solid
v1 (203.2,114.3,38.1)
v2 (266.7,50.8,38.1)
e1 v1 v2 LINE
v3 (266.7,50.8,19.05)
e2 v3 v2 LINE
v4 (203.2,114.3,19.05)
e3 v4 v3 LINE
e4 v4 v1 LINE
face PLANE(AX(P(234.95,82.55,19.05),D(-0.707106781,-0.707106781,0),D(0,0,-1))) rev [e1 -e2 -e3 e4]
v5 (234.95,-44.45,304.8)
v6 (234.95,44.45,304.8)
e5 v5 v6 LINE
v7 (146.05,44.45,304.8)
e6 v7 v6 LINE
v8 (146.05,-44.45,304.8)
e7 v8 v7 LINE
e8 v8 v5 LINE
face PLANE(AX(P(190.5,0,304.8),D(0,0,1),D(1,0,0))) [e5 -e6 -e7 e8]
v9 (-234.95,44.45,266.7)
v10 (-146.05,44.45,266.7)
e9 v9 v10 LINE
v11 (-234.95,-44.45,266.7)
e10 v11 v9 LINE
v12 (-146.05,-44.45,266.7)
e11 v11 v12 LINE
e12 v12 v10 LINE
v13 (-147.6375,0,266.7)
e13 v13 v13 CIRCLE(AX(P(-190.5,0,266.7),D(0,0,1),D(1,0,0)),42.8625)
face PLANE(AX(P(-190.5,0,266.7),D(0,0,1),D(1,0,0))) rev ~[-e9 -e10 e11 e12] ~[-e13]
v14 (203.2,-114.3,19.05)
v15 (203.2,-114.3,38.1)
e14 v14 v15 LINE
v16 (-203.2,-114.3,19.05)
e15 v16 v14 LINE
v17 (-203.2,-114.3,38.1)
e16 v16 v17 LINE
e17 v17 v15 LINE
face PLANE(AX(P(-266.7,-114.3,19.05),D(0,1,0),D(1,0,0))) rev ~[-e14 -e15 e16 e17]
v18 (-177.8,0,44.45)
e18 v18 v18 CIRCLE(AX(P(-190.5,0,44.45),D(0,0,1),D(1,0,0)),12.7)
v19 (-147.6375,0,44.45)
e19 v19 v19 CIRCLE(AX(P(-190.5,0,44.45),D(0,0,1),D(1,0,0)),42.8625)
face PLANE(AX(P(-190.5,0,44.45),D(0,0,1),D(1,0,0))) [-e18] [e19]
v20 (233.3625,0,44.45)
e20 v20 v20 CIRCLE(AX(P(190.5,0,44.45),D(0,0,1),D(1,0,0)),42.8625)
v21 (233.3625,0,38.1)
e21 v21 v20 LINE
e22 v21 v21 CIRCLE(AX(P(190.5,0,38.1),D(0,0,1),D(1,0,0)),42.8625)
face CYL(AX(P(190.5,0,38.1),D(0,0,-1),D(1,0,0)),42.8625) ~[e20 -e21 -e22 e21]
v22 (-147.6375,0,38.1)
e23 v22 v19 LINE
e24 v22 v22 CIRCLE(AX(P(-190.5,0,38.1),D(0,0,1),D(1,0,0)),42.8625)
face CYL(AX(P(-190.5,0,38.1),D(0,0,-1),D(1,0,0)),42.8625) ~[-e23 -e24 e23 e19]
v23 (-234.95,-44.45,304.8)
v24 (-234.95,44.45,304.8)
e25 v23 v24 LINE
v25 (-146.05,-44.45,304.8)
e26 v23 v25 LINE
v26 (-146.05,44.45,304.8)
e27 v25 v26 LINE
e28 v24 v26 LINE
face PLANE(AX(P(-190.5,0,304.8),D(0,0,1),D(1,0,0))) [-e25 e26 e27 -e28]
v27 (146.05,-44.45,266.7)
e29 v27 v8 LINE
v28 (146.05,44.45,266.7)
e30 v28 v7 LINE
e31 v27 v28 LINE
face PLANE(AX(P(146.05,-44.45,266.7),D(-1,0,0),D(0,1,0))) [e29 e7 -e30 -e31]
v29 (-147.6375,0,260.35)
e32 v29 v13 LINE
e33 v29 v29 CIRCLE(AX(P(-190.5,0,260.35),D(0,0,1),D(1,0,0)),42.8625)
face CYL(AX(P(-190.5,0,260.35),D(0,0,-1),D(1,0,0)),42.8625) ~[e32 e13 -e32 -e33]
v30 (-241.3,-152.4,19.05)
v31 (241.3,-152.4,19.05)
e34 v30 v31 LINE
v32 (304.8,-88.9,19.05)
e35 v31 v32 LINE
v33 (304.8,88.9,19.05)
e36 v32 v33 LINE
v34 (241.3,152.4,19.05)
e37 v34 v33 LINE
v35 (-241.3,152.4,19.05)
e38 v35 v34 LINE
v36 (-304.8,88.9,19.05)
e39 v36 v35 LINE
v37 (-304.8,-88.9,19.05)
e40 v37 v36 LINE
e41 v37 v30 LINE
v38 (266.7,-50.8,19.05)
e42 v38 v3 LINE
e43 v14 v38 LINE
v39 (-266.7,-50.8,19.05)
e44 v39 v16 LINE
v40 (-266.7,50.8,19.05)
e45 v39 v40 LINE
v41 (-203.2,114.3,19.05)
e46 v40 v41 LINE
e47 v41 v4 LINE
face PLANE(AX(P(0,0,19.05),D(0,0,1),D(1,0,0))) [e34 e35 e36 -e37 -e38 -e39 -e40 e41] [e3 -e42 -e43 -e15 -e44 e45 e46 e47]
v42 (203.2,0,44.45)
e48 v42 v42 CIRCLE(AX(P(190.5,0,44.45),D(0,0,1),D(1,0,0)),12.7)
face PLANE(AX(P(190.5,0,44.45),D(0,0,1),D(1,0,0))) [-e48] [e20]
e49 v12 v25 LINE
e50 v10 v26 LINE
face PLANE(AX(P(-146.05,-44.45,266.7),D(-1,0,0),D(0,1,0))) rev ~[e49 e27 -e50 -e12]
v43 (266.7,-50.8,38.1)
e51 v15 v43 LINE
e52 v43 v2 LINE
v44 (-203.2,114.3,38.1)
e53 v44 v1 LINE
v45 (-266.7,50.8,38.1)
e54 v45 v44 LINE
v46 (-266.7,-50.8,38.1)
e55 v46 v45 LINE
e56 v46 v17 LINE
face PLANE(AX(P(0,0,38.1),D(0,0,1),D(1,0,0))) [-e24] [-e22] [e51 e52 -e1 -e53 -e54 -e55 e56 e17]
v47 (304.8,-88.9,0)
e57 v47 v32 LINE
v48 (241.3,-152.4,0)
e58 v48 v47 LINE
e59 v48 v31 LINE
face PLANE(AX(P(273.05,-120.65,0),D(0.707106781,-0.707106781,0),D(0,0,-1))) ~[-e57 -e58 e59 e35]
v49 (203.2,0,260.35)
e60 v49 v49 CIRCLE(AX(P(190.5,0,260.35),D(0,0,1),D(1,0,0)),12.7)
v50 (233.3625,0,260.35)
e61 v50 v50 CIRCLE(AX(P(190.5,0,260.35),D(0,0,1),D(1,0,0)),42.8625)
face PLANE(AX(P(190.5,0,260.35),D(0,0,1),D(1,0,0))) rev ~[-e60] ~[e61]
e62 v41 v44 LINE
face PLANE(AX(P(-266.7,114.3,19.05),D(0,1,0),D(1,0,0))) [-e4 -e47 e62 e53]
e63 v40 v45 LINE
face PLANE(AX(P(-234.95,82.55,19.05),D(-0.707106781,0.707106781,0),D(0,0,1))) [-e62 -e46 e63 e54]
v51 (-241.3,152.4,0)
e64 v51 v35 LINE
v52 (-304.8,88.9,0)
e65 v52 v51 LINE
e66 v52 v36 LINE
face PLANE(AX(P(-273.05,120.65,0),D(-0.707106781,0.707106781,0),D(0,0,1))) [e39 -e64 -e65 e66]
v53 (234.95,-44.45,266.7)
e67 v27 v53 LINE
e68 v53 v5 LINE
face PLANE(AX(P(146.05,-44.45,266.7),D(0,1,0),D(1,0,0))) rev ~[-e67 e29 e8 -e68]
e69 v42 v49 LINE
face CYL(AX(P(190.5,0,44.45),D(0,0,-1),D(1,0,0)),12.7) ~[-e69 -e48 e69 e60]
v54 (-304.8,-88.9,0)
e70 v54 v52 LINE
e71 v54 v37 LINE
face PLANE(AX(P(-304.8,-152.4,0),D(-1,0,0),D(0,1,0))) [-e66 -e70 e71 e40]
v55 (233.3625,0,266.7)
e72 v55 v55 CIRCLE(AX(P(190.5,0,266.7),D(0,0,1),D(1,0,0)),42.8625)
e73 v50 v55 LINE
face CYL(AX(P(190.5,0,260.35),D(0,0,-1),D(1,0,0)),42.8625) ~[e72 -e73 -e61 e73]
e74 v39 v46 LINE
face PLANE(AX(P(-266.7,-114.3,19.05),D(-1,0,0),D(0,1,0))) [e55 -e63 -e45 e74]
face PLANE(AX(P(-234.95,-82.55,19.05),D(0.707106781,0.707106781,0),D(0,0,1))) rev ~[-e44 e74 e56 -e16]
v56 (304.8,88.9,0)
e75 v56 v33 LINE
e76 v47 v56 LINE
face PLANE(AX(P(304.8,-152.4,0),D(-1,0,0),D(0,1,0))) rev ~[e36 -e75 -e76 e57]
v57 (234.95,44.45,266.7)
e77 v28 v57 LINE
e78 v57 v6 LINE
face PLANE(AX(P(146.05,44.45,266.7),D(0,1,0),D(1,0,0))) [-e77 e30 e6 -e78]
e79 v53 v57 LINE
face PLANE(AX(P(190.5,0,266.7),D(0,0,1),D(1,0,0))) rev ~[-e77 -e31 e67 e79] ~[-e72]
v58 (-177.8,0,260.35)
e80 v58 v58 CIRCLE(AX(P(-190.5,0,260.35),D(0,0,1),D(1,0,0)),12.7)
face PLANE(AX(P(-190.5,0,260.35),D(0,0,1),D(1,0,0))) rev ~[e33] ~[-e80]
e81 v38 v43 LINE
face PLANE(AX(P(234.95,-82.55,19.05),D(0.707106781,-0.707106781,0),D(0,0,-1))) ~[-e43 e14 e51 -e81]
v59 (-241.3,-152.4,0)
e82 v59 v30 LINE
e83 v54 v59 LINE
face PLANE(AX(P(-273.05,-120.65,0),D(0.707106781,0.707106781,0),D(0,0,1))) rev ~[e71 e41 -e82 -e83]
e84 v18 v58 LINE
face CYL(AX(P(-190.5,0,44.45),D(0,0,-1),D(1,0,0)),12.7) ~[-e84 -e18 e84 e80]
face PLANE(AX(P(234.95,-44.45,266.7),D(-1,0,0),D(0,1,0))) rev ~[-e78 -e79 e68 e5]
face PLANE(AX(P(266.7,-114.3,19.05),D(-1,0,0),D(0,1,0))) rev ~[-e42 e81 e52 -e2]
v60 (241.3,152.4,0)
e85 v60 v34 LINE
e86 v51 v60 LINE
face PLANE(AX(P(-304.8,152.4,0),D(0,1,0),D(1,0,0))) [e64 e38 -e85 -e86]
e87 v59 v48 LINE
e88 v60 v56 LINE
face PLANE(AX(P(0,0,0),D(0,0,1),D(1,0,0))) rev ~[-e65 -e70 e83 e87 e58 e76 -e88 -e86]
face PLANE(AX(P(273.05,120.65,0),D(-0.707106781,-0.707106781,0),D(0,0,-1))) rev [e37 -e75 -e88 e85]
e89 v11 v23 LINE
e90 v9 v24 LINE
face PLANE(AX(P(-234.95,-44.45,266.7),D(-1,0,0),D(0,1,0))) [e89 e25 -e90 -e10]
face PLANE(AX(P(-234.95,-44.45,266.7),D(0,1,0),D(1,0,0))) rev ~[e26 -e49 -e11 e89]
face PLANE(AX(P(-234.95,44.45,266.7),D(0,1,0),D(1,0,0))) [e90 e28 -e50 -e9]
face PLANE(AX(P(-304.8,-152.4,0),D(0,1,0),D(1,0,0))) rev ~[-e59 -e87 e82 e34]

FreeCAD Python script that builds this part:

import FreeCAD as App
import Part
import Sketcher
Q = App.Units.Quantity


def edges_at(feature, points):
    """Names of the edges that pass closest to the given points."""
    edges = feature.Shape.Edges
    near = lambda p: min(range(len(edges)), key=lambda i: edges[i].distToShape(Part.Vertex(*p))[0])
    return sorted({f"Edge{near(p) + 1}" for p in points})

doc = App.newDocument("Part")
body = doc.addObject("PartDesign::Body", "Body")

sketch1 = body.newObject("Sketcher::SketchObject", "Sketch")
sketch1.AttachmentSupport = (doc.getObject("XY_Plane"), [""])
sketch1.MapMode = "FlatFace"
sketch1.addGeometry([
    Part.LineSegment(App.Vector(-304.8, 152.4, 0), App.Vector(-304.8, -152.4, 0)),
    Part.LineSegment(App.Vector(-304.8, -152.4, 0), App.Vector(304.8, -152.4, 0)),
    Part.LineSegment(App.Vector(304.8, -152.4, 0), App.Vector(304.8, 152.4, 0)),
    Part.LineSegment(App.Vector(304.8, 152.4, 0), App.Vector(-304.8, 152.4, 0)),
], False)
sketch1.addConstraint([
    Sketcher.Constraint("Coincident", 0, 2, 1, 1),
    Sketcher.Constraint("Coincident", 1, 2, 2, 1),
    Sketcher.Constraint("Coincident", 2, 2, 3, 1),
    Sketcher.Constraint("Coincident", 3, 2, 0, 1),
    Sketcher.Constraint("Vertical", 0),
    Sketcher.Constraint("Horizontal", 1),
    Sketcher.Constraint("Vertical", 2),
    Sketcher.Constraint("Horizontal", 3),
    Sketcher.Constraint("Symmetric", 0, 2, 2, 2, -1, 1),
    Sketcher.Constraint("DistanceX", 1, 1, 1, 2, Q("24 in")),
    Sketcher.Constraint("DistanceY", 0, 2, 0, 1, Q("12 in")),
])
pad1 = body.newObject("PartDesign::Pad", "Pad")
pad1.Profile = sketch1
pad1.Length = Q("0.75 in")

sketch2 = body.newObject("Sketcher::SketchObject", "Sketch001")
sketch2.AttachmentSupport = (doc.getObject("XY_Plane"), [""])
sketch2.MapMode = "FlatFace"
sketch2.AttachmentOffset = App.Placement(App.Vector(0, 0, 0.75 * 25.4), App.Rotation())
sketch2.addGeometry([
    Part.LineSegment(App.Vector(-266.7, 114.3, 0), App.Vector(-266.7, -114.3, 0)),
    Part.LineSegment(App.Vector(-266.7, -114.3, 0), App.Vector(266.7, -114.3, 0)),
    Part.LineSegment(App.Vector(266.7, -114.3, 0), App.Vector(266.7, 114.3, 0)),
    Part.LineSegment(App.Vector(266.7, 114.3, 0), App.Vector(-266.7, 114.3, 0)),
], False)
sketch2.addConstraint([
    Sketcher.Constraint("Coincident", 0, 2, 1, 1),
    Sketcher.Constraint("Coincident", 1, 2, 2, 1),
    Sketcher.Constraint("Coincident", 2, 2, 3, 1),
    Sketcher.Constraint("Coincident", 3, 2, 0, 1),
    Sketcher.Constraint("Vertical", 0),
    Sketcher.Constraint("Horizontal", 1),
    Sketcher.Constraint("Vertical", 2),
    Sketcher.Constraint("Horizontal", 3),
    Sketcher.Constraint("Symmetric", 0, 2, 2, 2, -1, 1),
    Sketcher.Constraint("DistanceX", 1, 1, 1, 2, Q("21 in")),
    Sketcher.Constraint("DistanceY", 0, 2, 0, 1, Q("9 in")),
])
pad2 = body.newObject("PartDesign::Pad", "Pad001")
pad2.Profile = sketch2
pad2.Length = Q("0.75 in")

sketch3 = body.newObject("Sketcher::SketchObject", "Sketch002")
sketch3.AttachmentSupport = (doc.getObject("XY_Plane"), [""])
sketch3.MapMode = "FlatFace"
sketch3.AttachmentOffset = App.Placement(App.Vector(0, 0, 1.5 * 25.4), App.Rotation())
sketch3.addGeometry([
    Part.Circle(App.Vector(-190.5, 0, 0), App.Vector(0, 0, 1), 42.8625),
    Part.Circle(App.Vector(190.5, 0, 0), App.Vector(0, 0, 1), 42.8625),
], False)
sketch3.addConstraint([
    Sketcher.Constraint("Equal", 0, 1),
    Sketcher.Constraint("Symmetric", 0, 3, 1, 3, -1, 1),
    Sketcher.Constraint("PointOnObject", 0, 3, -1),
    Sketcher.Constraint("Diameter", 0, Q("3.375 in")),
    Sketcher.Constraint("DistanceX", 0, 3, 1, 3, Q("15 in")),
])
pad3 = body.newObject("PartDesign::Pad", "Pad002")
pad3.Profile = sketch3
pad3.Length = Q("0.25 in")

sketch4 = body.newObject("Sketcher::SketchObject", "Sketch003")
sketch4.AttachmentSupport = (doc.getObject("XY_Plane"), [""])
sketch4.MapMode = "FlatFace"
sketch4.AttachmentOffset = App.Placement(App.Vector(0, 0, 1.75 * 25.4), App.Rotation())
sketch4.addGeometry([
    Part.Circle(App.Vector(-190.5, 0, 0), App.Vector(0, 0, 1), 12.7),
    Part.Circle(App.Vector(190.5, 0, 0), App.Vector(0, 0, 1), 12.7),
], False)
sketch4.addConstraint([
    Sketcher.Constraint("Equal", 0, 1),
    Sketcher.Constraint("Symmetric", 0, 3, 1, 3, -1, 1),
    Sketcher.Constraint("PointOnObject", 0, 3, -1),
    Sketcher.Constraint("Diameter", 0, Q("1 in")),
    Sketcher.Constraint("DistanceX", 0, 3, 1, 3, Q("15 in")),
])
pad4 = body.newObject("PartDesign::Pad", "Pad003")
pad4.Profile = sketch4
pad4.Length = Q("8.5 in")

sketch5 = body.newObject("Sketcher::SketchObject", "Sketch004")
sketch5.AttachmentSupport = (doc.getObject("XY_Plane"), [""])
sketch5.MapMode = "FlatFace"
sketch5.AttachmentOffset = App.Placement(App.Vector(0, 0, 10.25 * 25.4), App.Rotation())
sketch5.addGeometry([
    Part.Circle(App.Vector(-190.5, 0, 0), App.Vector(0, 0, 1), 42.8625),
    Part.Circle(App.Vector(190.5, 0, 0), App.Vector(0, 0, 1), 42.8625),
], False)
sketch5.addConstraint([
    Sketcher.Constraint("Equal", 0, 1),
    Sketcher.Constraint("Symmetric", 0, 3, 1, 3, -1, 1),
    Sketcher.Constraint("PointOnObject", 0, 3, -1),
    Sketcher.Constraint("Diameter", 0, Q("3.375 in")),
    Sketcher.Constraint("DistanceX", 0, 3, 1, 3, Q("15 in")),
])
pad5 = body.newObject("PartDesign::Pad", "Pad004")
pad5.Profile = sketch5
pad5.Length = Q("0.25 in")

sketch6 = body.newObject("Sketcher::SketchObject", "Sketch005")
sketch6.AttachmentSupport = (doc.getObject("XY_Plane"), [""])
sketch6.MapMode = "FlatFace"
sketch6.AttachmentOffset = App.Placement(App.Vector(0, 0, 10.5 * 25.4), App.Rotation())
sketch6.addGeometry([
    Part.LineSegment(App.Vector(-234.95, 44.45, 0), App.Vector(-234.95, -44.45, 0)),
    Part.LineSegment(App.Vector(-234.95, -44.45, 0), App.Vector(-146.05, -44.45, 0)),
    Part.LineSegment(App.Vector(-146.05, -44.45, 0), App.Vector(-146.05, 44.45, 0)),
    Part.LineSegment(App.Vector(-146.05, 44.45, 0), App.Vector(-234.95, 44.45, 0)),
    Part.LineSegment(App.Vector(146.05, 44.45, 0), App.Vector(146.05, -44.45, 0)),
    Part.LineSegment(App.Vector(146.05, -44.45, 0), App.Vector(234.95, -44.45, 0)),
    Part.LineSegment(App.Vector(234.95, -44.45, 0), App.Vector(234.95, 44.45, 0)),
    Part.LineSegment(App.Vector(234.95, 44.45, 0), App.Vector(146.05, 44.45, 0)),
], False)
sketch6.addConstraint([
    Sketcher.Constraint("Coincident", 0, 2, 1, 1),
    Sketcher.Constraint("Coincident", 1, 2, 2, 1),
    Sketcher.Constraint("Coincident", 2, 2, 3, 1),
    Sketcher.Constraint("Coincident", 3, 2, 0, 1),
    Sketcher.Constraint("Coincident", 4, 2, 5, 1),
    Sketcher.Constraint("Coincident", 5, 2, 6, 1),
    Sketcher.Constraint("Coincident", 6, 2, 7, 1),
    Sketcher.Constraint("Coincident", 7, 2, 4, 1),
    Sketcher.Constraint("Vertical", 0),
    Sketcher.Constraint("Horizontal", 1),
    Sketcher.Constraint("Vertical", 2),
    Sketcher.Constraint("Horizontal", 3),
    Sketcher.Constraint("Vertical", 4),
    Sketcher.Constraint("Horizontal", 5),
    Sketcher.Constraint("Vertical", 6),
    Sketcher.Constraint("Horizontal", 7),
    Sketcher.Constraint("Symmetric", 2, 2, 4, 2, -1, 1),
    Sketcher.Constraint("Symmetric", 0, 2, 6, 2, -1, 1),
    Sketcher.Constraint("Horizontal", 1, 2, 4, 2),
    Sketcher.Constraint("Equal", 7, 0),
    Sketcher.Constraint("DistanceX", 1, 1, 1, 2, Q("3.5 in")),
    Sketcher.Constraint("DistanceX", 0, 2, 4, 2, Q("15 in")),
])
pad6 = body.newObject("PartDesign::Pad", "Pad005")
pad6.Profile = sketch6
pad6.Length = Q("1.5 in")
doc.recompute()

chamfer = body.newObject("PartDesign::Chamfer", "Chamfer")
chamfer.Base = (pad6, edges_at(pad6, [
    (-266.7, 114.3, 28.575),
    (-266.7, -114.3, 28.575),
    (-304.8, -152.4, 9.525),
    (-304.8, 152.4, 9.525),
    (266.7, 114.3, 28.575),
    (266.7, -114.3, 28.575),
    (304.8, 152.4, 9.525),
    (304.8, -152.4, 9.525),
]))
chamfer.Size = Q("2.5 in")

doc.recompute()
